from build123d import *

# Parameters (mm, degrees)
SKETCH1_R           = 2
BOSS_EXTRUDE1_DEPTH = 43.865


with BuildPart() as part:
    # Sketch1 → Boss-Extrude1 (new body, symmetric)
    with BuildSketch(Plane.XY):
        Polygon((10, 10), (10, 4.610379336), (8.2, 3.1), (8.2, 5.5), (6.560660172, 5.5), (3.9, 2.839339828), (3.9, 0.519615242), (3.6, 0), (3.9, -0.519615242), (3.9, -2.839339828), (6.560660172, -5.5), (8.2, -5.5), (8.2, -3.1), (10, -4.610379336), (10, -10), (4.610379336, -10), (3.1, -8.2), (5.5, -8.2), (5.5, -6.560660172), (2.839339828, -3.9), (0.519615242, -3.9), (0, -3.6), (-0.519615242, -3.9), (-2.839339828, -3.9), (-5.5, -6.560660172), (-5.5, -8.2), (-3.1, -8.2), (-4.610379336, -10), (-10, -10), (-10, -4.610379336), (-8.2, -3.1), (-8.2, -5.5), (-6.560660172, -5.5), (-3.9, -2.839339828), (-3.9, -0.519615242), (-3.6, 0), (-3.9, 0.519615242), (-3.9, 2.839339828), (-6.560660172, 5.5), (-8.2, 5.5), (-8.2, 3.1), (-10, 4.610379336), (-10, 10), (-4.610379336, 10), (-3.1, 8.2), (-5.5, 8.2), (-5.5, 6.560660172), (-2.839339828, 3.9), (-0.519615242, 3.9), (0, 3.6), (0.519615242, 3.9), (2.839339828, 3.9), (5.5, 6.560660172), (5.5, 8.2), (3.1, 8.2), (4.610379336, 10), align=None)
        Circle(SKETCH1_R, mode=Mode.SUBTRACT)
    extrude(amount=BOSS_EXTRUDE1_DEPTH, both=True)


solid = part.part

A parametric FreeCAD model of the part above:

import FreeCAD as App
import Part
import Sketcher
from FreeCAD import Vector
Q = App.Units.Quantity

doc = App.newDocument("Part")
body = doc.addObject("PartDesign::Body", "Body")

# Sketch on XY plane
sketch1 = doc.addObject("Sketcher::SketchObject", "Sketch")
body.addObject(sketch1)
sketch1.AttachmentSupport = (doc.XY_Plane, [""])
sketch1.MapMode = "FlatFace"
sketch1.addGeometry([
    Part.LineSegment(Vector(10, 4.610379, 0), Vector(10, 10, 0)),  # 0
    Part.LineSegment(Vector(10, 10, 0), Vector(4.610379, 10, 0)),  # 1
    Part.LineSegment(Vector(4.610379, 10, 0), Vector(3.1, 8.2, 0)),  # 2
    Part.LineSegment(Vector(3.1, 8.2, 0), Vector(5.5, 8.2, 0)),  # 3
    Part.LineSegment(Vector(5.5, 8.2, 0), Vector(5.5, 6.56066, 0)),  # 4
    Part.LineSegment(Vector(5.5, 6.56066, 0), Vector(2.83934, 3.9, 0)),  # 5
    Part.LineSegment(Vector(2.83934, 3.9, 0), Vector(0.519615, 3.9, 0)),  # 6
    Part.LineSegment(Vector(0.519615, 3.9, 0), Vector(0, 3.6, 0)),  # 7
    Part.LineSegment(Vector(0, 3.6, 0), Vector(-0.519615, 3.9, 0)),  # 8
    Part.LineSegment(Vector(-0.519615, 3.9, 0), Vector(-2.83934, 3.9, 0)),  # 9
    Part.LineSegment(Vector(-2.83934, 3.9, 0), Vector(-5.5, 6.56066, 0)),  # 10
    Part.LineSegment(Vector(-5.5, 6.56066, 0), Vector(-5.5, 8.2, 0)),  # 11
    Part.LineSegment(Vector(-5.5, 8.2, 0), Vector(-3.1, 8.2, 0)),  # 12
    Part.LineSegment(Vector(-3.1, 8.2, 0), Vector(-4.610379, 10, 0)),  # 13
    Part.LineSegment(Vector(-4.610379, 10, 0), Vector(-10, 10, 0)),  # 14
    Part.LineSegment(Vector(-10, 10, 0), Vector(-10, 4.610379, 0)),  # 15
    Part.LineSegment(Vector(-10, 4.610379, 0), Vector(-8.2, 3.1, 0)),  # 16
    Part.LineSegment(Vector(-8.2, 3.1, 0), Vector(-8.2, 5.5, 0)),  # 17
    Part.LineSegment(Vector(-8.2, 5.5, 0), Vector(-6.56066, 5.5, 0)),  # 18
    Part.LineSegment(Vector(-6.56066, 5.5, 0), Vector(-3.9, 2.83934, 0)),  # 19
    Part.LineSegment(Vector(-3.9, 2.83934, 0), Vector(-3.9, 0.519615, 0)),  # 20
    Part.LineSegment(Vector(-3.9, 0.519615, 0), Vector(-3.6, 0, 0)),  # 21
    Part.LineSegment(Vector(-3.6, 0, 0), Vector(-3.9, -0.519615, 0)),  # 22
    Part.LineSegment(Vector(-3.9, -0.519615, 0), Vector(-3.9, -2.83934, 0)),  # 23
    Part.LineSegment(Vector(-3.9, -2.83934, 0), Vector(-6.56066, -5.5, 0)),  # 24
    Part.LineSegment(Vector(-6.56066, -5.5, 0), Vector(-8.2, -5.5, 0)),  # 25
    Part.LineSegment(Vector(-8.2, -5.5, 0), Vector(-8.2, -3.1, 0)),  # 26
    Part.LineSegment(Vector(-8.2, -3.1, 0), Vector(-10, -4.610379, 0)),  # 27
    Part.LineSegment(Vector(-10, -4.610379, 0), Vector(-10, -10, 0)),  # 28
    Part.LineSegment(Vector(-10, -10, 0), Vector(-4.610379, -10, 0)),  # 29
    Part.LineSegment(Vector(-4.610379, -10, 0), Vector(-3.1, -8.2, 0)),  # 30
    Part.LineSegment(Vector(-3.1, -8.2, 0), Vector(-5.5, -8.2, 0)),  # 31
    Part.LineSegment(Vector(-5.5, -8.2, 0), Vector(-5.5, -6.56066, 0)),  # 32
    Part.LineSegment(Vector(-5.5, -6.56066, 0), Vector(-2.83934, -3.9, 0)),  # 33
    Part.LineSegment(Vector(-2.83934, -3.9, 0), Vector(-0.519615, -3.9, 0)),  # 34
    Part.LineSegment(Vector(-0.519615, -3.9, 0), Vector(0, -3.6, 0)),  # 35
    Part.LineSegment(Vector(0, -3.6, 0), Vector(0.519615, -3.9, 0)),  # 36
    Part.LineSegment(Vector(0.519615, -3.9, 0), Vector(2.83934, -3.9, 0)),  # 37
    Part.LineSegment(Vector(2.83934, -3.9, 0), Vector(5.5, -6.56066, 0)),  # 38
    Part.LineSegment(Vector(5.5, -6.56066, 0), Vector(5.5, -8.2, 0)),  # 39
    Part.LineSegment(Vector(5.5, -8.2, 0), Vector(3.1, -8.2, 0)),  # 40
    Part.LineSegment(Vector(3.1, -8.2, 0), Vector(4.610379, -10, 0)),  # 41
    Part.LineSegment(Vector(4.610379, -10, 0), Vector(10, -10, 0)),  # 42
    Part.LineSegment(Vector(10, -10, 0), Vector(10, -4.610379, 0)),  # 43
    Part.LineSegment(Vector(10, -4.610379, 0), Vector(8.2, -3.1, 0)),  # 44
    Part.LineSegment(Vector(8.2, -3.1, 0), Vector(8.2, -5.5, 0)),  # 45
    Part.LineSegment(Vector(8.2, -5.5, 0), Vector(6.56066, -5.5, 0)),  # 46
    Part.LineSegment(Vector(6.56066, -5.5, 0), Vector(3.9, -2.83934, 0)),  # 47
    Part.LineSegment(Vector(3.9, -2.83934, 0), Vector(3.9, -0.519615, 0)),  # 48
    Part.LineSegment(Vector(3.9, -0.519615, 0), Vector(3.6, 0, 0)),  # 49
    Part.LineSegment(Vector(3.6, 0, 0), Vector(3.9, 0.519615, 0)),  # 50
    Part.LineSegment(Vector(3.9, 0.519615, 0), Vector(3.9, 2.83934, 0)),  # 51
    Part.LineSegment(Vector(3.9, 2.83934, 0), Vector(6.56066, 5.5, 0)),  # 52
    Part.LineSegment(Vector(6.56066, 5.5, 0), Vector(8.2, 5.5, 0)),  # 53
    Part.LineSegment(Vector(8.2, 5.5, 0), Vector(8.2, 3.1, 0)),  # 54
    Part.LineSegment(Vector(8.2, 3.1, 0), Vector(10, 4.610379, 0)),  # 55
    Part.Circle(Vector(0, 0, 0), Vector(0, 0, 1), 2),  # 56
], False)
sketch1.addConstraint([
    Sketcher.Constraint("Coincident", 0, 2, 1, 1),
    Sketcher.Constraint("Coincident", 1, 2, 2, 1),
    Sketcher.Constraint("Coincident", 2, 2, 3, 1),
    Sketcher.Constraint("Coincident", 3, 2, 4, 1),
    Sketcher.Constraint("Coincident", 4, 2, 5, 1),
    Sketcher.Constraint("Coincident", 5, 2, 6, 1),
    Sketcher.Constraint("Coincident", 6, 2, 7, 1),
    Sketcher.Constraint("Coincident", 7, 2, 8, 1),
    Sketcher.Constraint("Coincident", 8, 2, 9, 1),
    Sketcher.Constraint("Coincident", 9, 2, 10, 1),
    Sketcher.Constraint("Coincident", 10, 2, 11, 1),
    Sketcher.Constraint("Coincident", 11, 2, 12, 1),
    Sketcher.Constraint("Coincident", 12, 2, 13, 1),
    Sketcher.Constraint("Coincident", 13, 2, 14, 1),
    Sketcher.Constraint("Coincident", 14, 2, 15, 1),
    Sketcher.Constraint("Coincident", 15, 2, 16, 1),
    Sketcher.Constraint("Coincident", 16, 2, 17, 1),
    Sketcher.Constraint("Coincident", 17, 2, 18, 1),
    Sketcher.Constraint("Coincident", 18, 2, 19, 1),
    Sketcher.Constraint("Coincident", 19, 2, 20, 1),
    Sketcher.Constraint("Coincident", 20, 2, 21, 1),
    Sketcher.Constraint("Coincident", 21, 2, 22, 1),
    Sketcher.Constraint("Coincident", 22, 2, 23, 1),
    Sketcher.Constraint("Coincident", 23, 2, 24, 1),
    Sketcher.Constraint("Coincident", 24, 2, 25, 1),
    Sketcher.Constraint("Coincident", 25, 2, 26, 1),
    Sketcher.Constraint("Coincident", 26, 2, 27, 1),
    Sketcher.Constraint("Coincident", 27, 2, 28, 1),
    Sketcher.Constraint("Coincident", 28, 2, 29, 1),
    Sketcher.Constraint("Coincident", 29, 2, 30, 1),
    Sketcher.Constraint("Coincident", 30, 2, 31, 1),
    Sketcher.Constraint("Coincident", 31, 2, 32, 1),
    Sketcher.Constraint("Coincident", 32, 2, 33, 1),
    Sketcher.Constraint("Coincident", 33, 2, 34, 1),
    Sketcher.Constraint("Coincident", 34, 2, 35, 1),
    Sketcher.Constraint("Coincident", 35, 2, 36, 1),
    Sketcher.Constraint("Coincident", 36, 2, 37, 1),
    Sketcher.Constraint("Coincident", 37, 2, 38, 1),
    Sketcher.Constraint("Coincident", 38, 2, 39, 1),
    Sketcher.Constraint("Coincident", 39, 2, 40, 1),
    Sketcher.Constraint("Coincident", 40, 2, 41, 1),
    Sketcher.Constraint("Coincident", 41, 2, 42, 1),
    Sketcher.Constraint("Coincident", 42, 2, 43, 1),
    Sketcher.Constraint("Coincident", 43, 2, 44, 1),
    Sketcher.Constraint("Coincident", 44, 2, 45, 1),
    Sketcher.Constraint("Coincident", 45, 2, 46, 1),
    Sketcher.Constraint("Coincident", 46, 2, 47, 1),
    Sketcher.Constraint("Coincident", 47, 2, 48, 1),
    Sketcher.Constraint("Coincident", 48, 2, 49, 1),
    Sketcher.Constraint("Coincident", 49, 2, 50, 1),
    Sketcher.Constraint("Coincident", 50, 2, 51, 1),
    Sketcher.Constraint("Coincident", 51, 2, 52, 1),
    Sketcher.Constraint("Coincident", 52, 2, 53, 1),
    Sketcher.Constraint("Coincident", 53, 2, 54, 1),
    Sketcher.Constraint("Coincident", 54, 2, 55, 1),
    Sketcher.Constraint("Coincident", 55, 2, 0, 1),
    Sketcher.Constraint("Vertical", 0),
    Sketcher.Constraint("Horizontal", 1),
    Sketcher.Constraint("Horizontal", 3),
    Sketcher.Constraint("Vertical", 4),
    Sketcher.Constraint("Horizontal", 6),
    Sketcher.Constraint("Horizontal", 9),
    Sketcher.Constraint("Vertical", 11),
    Sketcher.Constraint("Horizontal", 12),
    Sketcher.Constraint("Horizontal", 14),
    Sketcher.Constraint("Vertical", 15),
    Sketcher.Constraint("Vertical", 17),
    Sketcher.Constraint("Horizontal", 18),
    Sketcher.Constraint("Vertical", 20),
    Sketcher.Constraint("Vertical", 23),
    Sketcher.Constraint("Horizontal", 25),
    Sketcher.Constraint("Vertical", 26),
    Sketcher.Constraint("Vertical", 28),
    Sketcher.Constraint("Horizontal", 29),
    Sketcher.Constraint("Horizontal", 31),
    Sketcher.Constraint("Vertical", 32),
    Sketcher.Constraint("Horizontal", 34),
    Sketcher.Constraint("Horizontal", 37),
    Sketcher.Constraint("Vertical", 39),
    Sketcher.Constraint("Horizontal", 40),
    Sketcher.Constraint("Horizontal", 42),
    Sketcher.Constraint("Vertical", 43),
    Sketcher.Constraint("Vertical", 45),
    Sketcher.Constraint("Horizontal", 46),
    Sketcher.Constraint("Vertical", 48),
    Sketcher.Constraint("Vertical", 51),
    Sketcher.Constraint("Horizontal", 53),
    Sketcher.Constraint("Vertical", 54),
    Sketcher.Constraint("Coincident", 56, 3, -1, 1),
    Sketcher.Constraint("Symmetric", 0, 2, 28, 2, -1, 1),
    Sketcher.Constraint("Symmetric", 2, 2, 30, 2, -1, 1),
    Sketcher.Constraint("Symmetric", 4, 2, 32, 2, -1, 1),
    Sketcher.Constraint("Symmetric", 5, 2, 33, 2, -1, 1),
    Sketcher.Constraint("Symmetric", 7, 2, 35, 2, -1, 1),
    Sketcher.Constraint("Symmetric", 8, 2, 36, 2, -1, 1),
    Sketcher.Constraint("Symmetric", 10, 2, 38, 2, -1, 1),
    Sketcher.Constraint("Symmetric", 12, 2, 40, 2, -1, 1),
    Sketcher.Constraint("Symmetric", 13, 2, 41, 2, -1, 1),
    Sketcher.Constraint("Symmetric", 15, 2, 43, 2, -1, 1),
    Sketcher.Constraint("Symmetric", 16, 2, 44, 2, -1, 1),
    Sketcher.Constraint("Symmetric", 18, 2, 46, 2, -1, 1),
    Sketcher.Constraint("Symmetric", 19, 2, 47, 2, -1, 1),
    Sketcher.Constraint("Symmetric", 21, 2, 49, 2, -1, 1),
    Sketcher.Constraint("Symmetric", 22, 2, 50, 2, -1, 1),
    Sketcher.Constraint("Symmetric", 24, 2, 52, 2, -1, 1),
    Sketcher.Constraint("Symmetric", 26, 2, 54, 2, -1, 1),
    Sketcher.Constraint("Symmetric", 6, 2, 8, 2, -2),
    Sketcher.Constraint("Symmetric", 4, 2, 10, 2, -2),
    Sketcher.Constraint("Symmetric", 2, 2, 12, 2, -2),
    Sketcher.Constraint("Symmetric", 1, 2, 13, 2, -2),
    Sketcher.Constraint("Symmetric", 27, 2, 43, 2, -2),
    Sketcher.Constraint("Symmetric", 26, 2, 44, 2, -2),
    Sketcher.Constraint("Symmetric", 24, 2, 46, 2, -2),
    Sketcher.Constraint("Symmetric", 23, 2, 47, 2, -2),
    Sketcher.Constraint("PointOnObject", 7, 2, -2),
    Sketcher.Constraint("PointOnObject", 21, 2, -1),
    Sketcher.Constraint("Perpendicular", 5, 10),
    Sketcher.Constraint("Perpendicular", 2, 16),
    Sketcher.Constraint("Parallel", 10, 19),
    Sketcher.Constraint("Perpendicular", 7, 21),
    Sketcher.Constraint("Perpendicular", 8, 22),
    Sketcher.Constraint("Perpendicular", 19, 24),
    Sketcher.Constraint("Perpendicular", 16, 30),
    Sketcher.Constraint("Perpendicular", 21, 35),
    Sketcher.Constraint("Perpendicular", 33, 38),
    Sketcher.Constraint("Perpendicular", 35, 49),
    Sketcher.Constraint("Perpendicular", 47, 52),
    Sketcher.Constraint("Perpendicular", 41, 55),
    Sketcher.Constraint("Equal", 42, 0),
    Sketcher.Constraint("Equal", 53, 4),
    Sketcher.Constraint("Equal", 40, 17),
    Sketcher.Constraint("Equal", 37, 20),
    Sketcher.Constraint("Equal", 13, 16),
    Sketcher.Constraint("Equal", 10, 19),
    Sketcher.Constraint("Equal", 8, 21),
    Sketcher.Constraint("Diameter", 56, Q("4 mm")),
    Sketcher.Constraint("Angle", 2, Q("-130 deg")),
    Sketcher.Constraint("Angle", 7, Q("-150 deg")),
    Sketcher.Constraint("DistanceX", 3, 1, 3, 2, Q("2.4 mm")),
    Sketcher.Constraint("DistanceX", -1, 1, 0, 2, Q("10 mm")),
    Sketcher.Constraint("Distance", 7, Q("0.6 mm")),
    Sketcher.Constraint("DistanceX", -1, 1, 2, 2, Q("3.1 mm")),
    Sketcher.Constraint("DistanceY", -1, 1, 2, 2, Q("8.2 mm")),
    Sketcher.Constraint("DistanceY", -1, 1, 5, 2, Q("3.9 mm")),
    Sketcher.Constraint("DistanceX", 18, 1, 18, 2, Q("1.63934 mm")),
])
pad1 = doc.addObject("PartDesign::Pad", "Pad")
body.addObject(pad1)
pad1.Profile = sketch1
pad1.Length = 87.73
pad1.Midplane = True

doc.recompute()
